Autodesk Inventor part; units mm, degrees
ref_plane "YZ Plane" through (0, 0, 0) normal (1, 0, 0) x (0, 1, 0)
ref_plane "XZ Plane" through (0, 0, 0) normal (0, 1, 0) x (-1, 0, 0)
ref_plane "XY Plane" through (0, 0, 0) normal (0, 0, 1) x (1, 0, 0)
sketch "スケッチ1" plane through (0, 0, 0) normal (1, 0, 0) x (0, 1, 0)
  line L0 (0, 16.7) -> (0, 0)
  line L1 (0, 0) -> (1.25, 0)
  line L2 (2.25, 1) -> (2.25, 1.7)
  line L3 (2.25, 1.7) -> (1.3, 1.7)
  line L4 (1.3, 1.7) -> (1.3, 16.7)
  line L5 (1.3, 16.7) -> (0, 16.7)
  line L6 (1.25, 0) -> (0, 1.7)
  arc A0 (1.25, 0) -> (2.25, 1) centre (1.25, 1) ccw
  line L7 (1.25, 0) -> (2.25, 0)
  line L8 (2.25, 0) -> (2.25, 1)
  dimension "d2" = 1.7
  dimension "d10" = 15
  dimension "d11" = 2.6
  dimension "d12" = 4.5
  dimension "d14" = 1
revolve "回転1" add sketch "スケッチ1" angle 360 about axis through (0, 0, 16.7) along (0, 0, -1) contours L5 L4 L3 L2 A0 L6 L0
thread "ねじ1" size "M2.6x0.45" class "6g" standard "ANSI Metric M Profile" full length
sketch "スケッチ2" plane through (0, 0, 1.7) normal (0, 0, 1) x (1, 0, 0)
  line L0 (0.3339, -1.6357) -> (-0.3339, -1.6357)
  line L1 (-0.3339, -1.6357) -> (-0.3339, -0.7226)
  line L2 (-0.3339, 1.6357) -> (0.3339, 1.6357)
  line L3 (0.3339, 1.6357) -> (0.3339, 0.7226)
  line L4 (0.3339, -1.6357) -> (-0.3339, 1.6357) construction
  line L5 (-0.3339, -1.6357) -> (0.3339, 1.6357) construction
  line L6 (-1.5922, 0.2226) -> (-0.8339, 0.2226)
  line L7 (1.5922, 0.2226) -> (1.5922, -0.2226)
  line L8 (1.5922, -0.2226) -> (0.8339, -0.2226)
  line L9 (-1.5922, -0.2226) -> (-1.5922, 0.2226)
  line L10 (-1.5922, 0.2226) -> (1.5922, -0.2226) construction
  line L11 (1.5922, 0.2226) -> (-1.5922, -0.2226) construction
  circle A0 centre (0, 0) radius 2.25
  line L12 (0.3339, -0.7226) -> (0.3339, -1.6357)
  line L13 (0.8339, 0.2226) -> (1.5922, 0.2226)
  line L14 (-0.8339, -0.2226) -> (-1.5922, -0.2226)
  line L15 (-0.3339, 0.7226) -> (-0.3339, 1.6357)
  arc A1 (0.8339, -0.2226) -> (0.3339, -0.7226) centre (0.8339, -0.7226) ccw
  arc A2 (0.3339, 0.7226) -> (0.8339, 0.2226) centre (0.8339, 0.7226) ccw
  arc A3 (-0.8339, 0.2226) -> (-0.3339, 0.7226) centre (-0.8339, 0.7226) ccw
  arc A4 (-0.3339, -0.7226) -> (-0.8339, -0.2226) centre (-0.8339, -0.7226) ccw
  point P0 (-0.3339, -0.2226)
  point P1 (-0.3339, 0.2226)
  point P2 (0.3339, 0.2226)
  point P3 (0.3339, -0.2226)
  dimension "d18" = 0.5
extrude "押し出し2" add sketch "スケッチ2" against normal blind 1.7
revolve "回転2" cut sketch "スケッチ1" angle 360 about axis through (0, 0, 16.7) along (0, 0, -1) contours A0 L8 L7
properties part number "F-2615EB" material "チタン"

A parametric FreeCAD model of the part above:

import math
import FreeCAD as App
import Part
import Sketcher
from FreeCAD import Vector

doc = App.newDocument("Part")
params = doc.addObject("Spreadsheet::Sheet", "Params")
for row, (alias, value) in enumerate([
    ("sketch1_radius", "1 mm"),
    ("sketch1_height", "15 mm"),
    ("sketch1_width", "1.3 mm"),
    ("sketch1_width2", "0.95 mm"),
    ("revolution_angle", "360 deg"),
    ("sketch2_radius", "0.5 mm"),
    ("sketch2_diameter", "4.5 mm"),
    ("pad1_length", "1.7 mm"),
    ("sketch3_radius", "1 mm"),
    ("groove_angle", "360 deg"),
], start=1):
    params.set(f"A{row}", alias)
    params.set(f"B{row}", "=" + value)
    params.setAlias(f"B{row}", alias)

body = doc.addObject("PartDesign::Body", "Body")

sketch1 = body.newObject("Sketcher::SketchObject", "Sketch")
sketch1.AttachmentSupport = (doc.getObject("YZ_Plane"), [""])
sketch1.MapMode = "FlatFace"
sketch1.addGeometry(Part.LineSegment(Vector(1.3, 16.7, 0), Vector(0, 16.7, 0)), False)
sketch1.addGeometry(Part.LineSegment(Vector(0, 16.7, 0), Vector(0, 1.7, 0)), False)
sketch1.addGeometry(Part.LineSegment(Vector(0, 1.7, 0), Vector(1.25, 0, 0)), False)
sketch1.addGeometry(Part.ArcOfCircle(Part.Circle(Vector(1.25, 1, 0), Vector(0, 0, 1), 1), math.radians(-90), math.radians(0)), False)
sketch1.addGeometry(Part.LineSegment(Vector(2.25, 1, 0), Vector(2.25, 1.7, 0)), False)
sketch1.addGeometry(Part.LineSegment(Vector(2.25, 1.7, 0), Vector(1.3, 1.7, 0)), False)
sketch1.addGeometry(Part.LineSegment(Vector(1.3, 1.7, 0), Vector(1.3, 16.7, 0)), False)
sketch1.addConstraint(Sketcher.Constraint("Coincident", 0, 2, 1, 1))
sketch1.addConstraint(Sketcher.Constraint("Coincident", 1, 2, 2, 1))
sketch1.addConstraint(Sketcher.Constraint("Coincident", 2, 2, 3, 1))
sketch1.addConstraint(Sketcher.Constraint("Tangent", 3, 2, 4, 1))
sketch1.addConstraint(Sketcher.Constraint("Coincident", 4, 2, 5, 1))
sketch1.addConstraint(Sketcher.Constraint("Coincident", 5, 2, 6, 1))
sketch1.addConstraint(Sketcher.Constraint("Coincident", 6, 2, 0, 1))
sketch1.addConstraint(Sketcher.Constraint("Horizontal", 0))
sketch1.addConstraint(Sketcher.Constraint("Vertical", 1))
sketch1.addConstraint(Sketcher.Constraint("Vertical", 4))
sketch1.addConstraint(Sketcher.Constraint("Horizontal", 5))
sketch1.addConstraint(Sketcher.Constraint("Vertical", 6))
sketch1.addConstraint(Sketcher.Constraint("PointOnObject", 0, 2, -2))
sketch1.addConstraint(Sketcher.Constraint("PointOnObject", 2, 2, -1))
sketch1.addConstraint(Sketcher.Constraint("Horizontal", 1, 2, 4, 2))
sketch1.addConstraint(Sketcher.Constraint("Vertical", 3, 3, 2, 2))
sketch1.addConstraint(Sketcher.Constraint("Radius", 3, 1.0))
sketch1.addConstraint(Sketcher.Constraint("DistanceY", 1, 2, 1, 1, 15.0))
sketch1.addConstraint(Sketcher.Constraint("DistanceY", -1, 1, 1, 2, 1.7))
sketch1.addConstraint(Sketcher.Constraint("DistanceX", 0, 2, 0, 1, 1.3))
sketch1.addConstraint(Sketcher.Constraint("DistanceX", 5, 2, 5, 1, 0.95))
sketch1.setExpression("Constraints[16]", "Params.sketch1_radius")
sketch1.setExpression("Constraints[17]", "Params.sketch1_height")
sketch1.setExpression("Constraints[19]", "Params.sketch1_width")
sketch1.setExpression("Constraints[20]", "Params.sketch1_width2")
revolution = body.newObject("PartDesign::Revolution", "Revolution")
revolution.Profile = sketch1
revolution.ReferenceAxis = (sketch1, ["V_Axis"])
revolution.setExpression("Angle", "Params.revolution_angle")

sketch2 = body.newObject("Sketcher::SketchObject", "Sketch001")
sketch2.AttachmentSupport = (doc.getObject("XY_Plane"), [""])
sketch2.MapMode = "FlatFace"
sketch2.AttachmentOffset = App.Placement(Vector(0, 0, 1.7), App.Rotation())
sketch2.addGeometry(Part.Circle(Vector(0, 0, 0), Vector(0, 0, 1), 2.25), False)
sketch2.addGeometry(Part.LineSegment(Vector(0.3339, -0.7226, 0), Vector(0.3339, -1.6357, 0)), False)
sketch2.addGeometry(Part.LineSegment(Vector(0.3339, -1.6357, 0), Vector(-0.3339, -1.6357, 0)), False)
sketch2.addGeometry(Part.LineSegment(Vector(-0.3339, -1.6357, 0), Vector(-0.3339, -0.7226, 0)), False)
sketch2.addGeometry(Part.ArcOfCircle(Part.Circle(Vector(-0.8339, -0.7226, 0), Vector(0, 0, 1), 0.5), math.radians(0), math.radians(90)), False)
sketch2.addGeometry(Part.LineSegment(Vector(-0.8339, -0.2226, 0), Vector(-1.5922, -0.2226, 0)), False)
sketch2.addGeometry(Part.LineSegment(Vector(-1.5922, -0.2226, 0), Vector(-1.5922, 0.2226, 0)), False)
sketch2.addGeometry(Part.LineSegment(Vector(-1.5922, 0.2226, 0), Vector(-0.8339, 0.2226, 0)), False)
sketch2.addGeometry(Part.ArcOfCircle(Part.Circle(Vector(-0.8339, 0.7226, 0), Vector(0, 0, 1), 0.5), math.radians(-90), math.radians(0)), False)
sketch2.addGeometry(Part.LineSegment(Vector(-0.3339, 0.7226, 0), Vector(-0.3339, 1.6357, 0)), False)
sketch2.addGeometry(Part.LineSegment(Vector(-0.3339, 1.6357, 0), Vector(0.3339, 1.6357, 0)), False)
sketch2.addGeometry(Part.LineSegment(Vector(0.3339, 1.6357, 0), Vector(0.3339, 0.7226, 0)), False)
sketch2.addGeometry(Part.ArcOfCircle(Part.Circle(Vector(0.8339, 0.7226, 0), Vector(0, 0, 1), 0.5), math.radians(180), math.radians(270)), False)
sketch2.addGeometry(Part.LineSegment(Vector(0.8339, 0.2226, 0), Vector(1.5922, 0.2226, 0)), False)
sketch2.addGeometry(Part.LineSegment(Vector(1.5922, 0.2226, 0), Vector(1.5922, -0.2226, 0)), False)
sketch2.addGeometry(Part.LineSegment(Vector(1.5922, -0.2226, 0), Vector(0.8339, -0.2226, 0)), False)
sketch2.addGeometry(Part.ArcOfCircle(Part.Circle(Vector(0.8339, -0.7226, 0), Vector(0, 0, 1), 0.5), math.radians(90), math.radians(180)), False)
sketch2.addConstraint(Sketcher.Constraint("Coincident", 1, 2, 2, 1))
sketch2.addConstraint(Sketcher.Constraint("Coincident", 2, 2, 3, 1))
sketch2.addConstraint(Sketcher.Constraint("Tangent", 3, 2, 4, 1))
sketch2.addConstraint(Sketcher.Constraint("Tangent", 4, 2, 5, 1))
sketch2.addConstraint(Sketcher.Constraint("Coincident", 5, 2, 6, 1))
sketch2.addConstraint(Sketcher.Constraint("Coincident", 6, 2, 7, 1))
sketch2.addConstraint(Sketcher.Constraint("Tangent", 7, 2, 8, 1))
sketch2.addConstraint(Sketcher.Constraint("Tangent", 8, 2, 9, 1))
sketch2.addConstraint(Sketcher.Constraint("Coincident", 9, 2, 10, 1))
sketch2.addConstraint(Sketcher.Constraint("Coincident", 10, 2, 11, 1))
sketch2.addConstraint(Sketcher.Constraint("Tangent", 11, 2, 12, 1))
sketch2.addConstraint(Sketcher.Constraint("Tangent", 12, 2, 13, 1))
sketch2.addConstraint(Sketcher.Constraint("Coincident", 13, 2, 14, 1))
sketch2.addConstraint(Sketcher.Constraint("Coincident", 14, 2, 15, 1))
sketch2.addConstraint(Sketcher.Constraint("Tangent", 15, 2, 16, 1))
sketch2.addConstraint(Sketcher.Constraint("Tangent", 16, 2, 1, 1))
sketch2.addConstraint(Sketcher.Constraint("Vertical", 1))
sketch2.addConstraint(Sketcher.Constraint("Horizontal", 2))
sketch2.addConstraint(Sketcher.Constraint("Vertical", 3))
sketch2.addConstraint(Sketcher.Constraint("Horizontal", 5))
sketch2.addConstraint(Sketcher.Constraint("Vertical", 6))
sketch2.addConstraint(Sketcher.Constraint("Horizontal", 7))
sketch2.addConstraint(Sketcher.Constraint("Vertical", 9))
sketch2.addConstraint(Sketcher.Constraint("Horizontal", 10))
sketch2.addConstraint(Sketcher.Constraint("Vertical", 11))
sketch2.addConstraint(Sketcher.Constraint("Horizontal", 13))
sketch2.addConstraint(Sketcher.Constraint("Vertical", 14))
sketch2.addConstraint(Sketcher.Constraint("Horizontal", 15))
sketch2.addConstraint(Sketcher.Constraint("Coincident", 0, 3, -1, 1))
sketch2.addConstraint(Sketcher.Constraint("Equal", 4, 8))
sketch2.addConstraint(Sketcher.Constraint("Equal", 8, 12))
sketch2.addConstraint(Sketcher.Constraint("Equal", 12, 16))
sketch2.addConstraint(Sketcher.Constraint("Symmetric", 4, 3, 12, 3, -1, 1))
sketch2.addConstraint(Sketcher.Constraint("Symmetric", 8, 3, 16, 3, -1, 1))
sketch2.addConstraint(Sketcher.Constraint("Symmetric", 8, 3, 12, 3, -2))
sketch2.addConstraint(Sketcher.Constraint("Equal", 7, 13))
sketch2.addConstraint(Sketcher.Constraint("Equal", 3, 9))
sketch2.addConstraint(Sketcher.Constraint("Radius", 4, 0.5))
sketch2.addConstraint(Sketcher.Constraint("Diameter", 0, 4.5))
sketch2.addConstraint(Sketcher.Constraint("DistanceY", 1, 2, 1, 1, 0.913))
sketch2.addConstraint(Sketcher.Constraint("DistanceX", 2, 2, 2, 1, 0.6678))
sketch2.addConstraint(Sketcher.Constraint("DistanceX", 5, 2, 5, 1, 0.7583))
sketch2.addConstraint(Sketcher.Constraint("DistanceY", 6, 1, 6, 2, 0.4452))
sketch2.setExpression("Constraints[37]", "Params.sketch2_radius")
sketch2.setExpression("Constraints[38]", "Params.sketch2_diameter")
pad1 = body.newObject("PartDesign::Pad", "Pad")
pad1.Profile = sketch2
pad1.setExpression("Length", "Params.pad1_length")
pad1.Reversed = True

sketch3 = body.newObject("Sketcher::SketchObject", "Sketch002")
sketch3.AttachmentSupport = (doc.getObject("YZ_Plane"), [""])
sketch3.MapMode = "FlatFace"
sketch3.addGeometry(Part.ArcOfCircle(Part.Circle(Vector(1.25, 1, 0), Vector(0, 0, 1), 1), math.radians(-90), math.radians(0)), False)
sketch3.addGeometry(Part.LineSegment(Vector(1.25, 0, 0), Vector(2.25, 0, 0)), False)
sketch3.addGeometry(Part.LineSegment(Vector(2.25, 0, 0), Vector(2.25, 1, 0)), False)
sketch3.addConstraint(Sketcher.Constraint("Tangent", 0, 1, 1, 1))
sketch3.addConstraint(Sketcher.Constraint("Coincident", 1, 2, 2, 1))
sketch3.addConstraint(Sketcher.Constraint("Tangent", 2, 2, 0, 2))
sketch3.addConstraint(Sketcher.Constraint("Horizontal", 1))
sketch3.addConstraint(Sketcher.Constraint("Vertical", 2))
sketch3.addConstraint(Sketcher.Constraint("PointOnObject", 0, 1, -1))
sketch3.addConstraint(Sketcher.Constraint("Radius", 0, 1.0))
sketch3.addConstraint(Sketcher.Constraint("DistanceX", -1, 1, 0, 3, 1.25))
sketch3.setExpression("Constraints[6]", "Params.sketch3_radius")
groove = body.newObject("PartDesign::Groove", "Groove")
groove.Profile = sketch3
groove.ReferenceAxis = (sketch3, ["V_Axis"])
groove.setExpression("Angle", "Params.groove_angle")

doc.recompute()
